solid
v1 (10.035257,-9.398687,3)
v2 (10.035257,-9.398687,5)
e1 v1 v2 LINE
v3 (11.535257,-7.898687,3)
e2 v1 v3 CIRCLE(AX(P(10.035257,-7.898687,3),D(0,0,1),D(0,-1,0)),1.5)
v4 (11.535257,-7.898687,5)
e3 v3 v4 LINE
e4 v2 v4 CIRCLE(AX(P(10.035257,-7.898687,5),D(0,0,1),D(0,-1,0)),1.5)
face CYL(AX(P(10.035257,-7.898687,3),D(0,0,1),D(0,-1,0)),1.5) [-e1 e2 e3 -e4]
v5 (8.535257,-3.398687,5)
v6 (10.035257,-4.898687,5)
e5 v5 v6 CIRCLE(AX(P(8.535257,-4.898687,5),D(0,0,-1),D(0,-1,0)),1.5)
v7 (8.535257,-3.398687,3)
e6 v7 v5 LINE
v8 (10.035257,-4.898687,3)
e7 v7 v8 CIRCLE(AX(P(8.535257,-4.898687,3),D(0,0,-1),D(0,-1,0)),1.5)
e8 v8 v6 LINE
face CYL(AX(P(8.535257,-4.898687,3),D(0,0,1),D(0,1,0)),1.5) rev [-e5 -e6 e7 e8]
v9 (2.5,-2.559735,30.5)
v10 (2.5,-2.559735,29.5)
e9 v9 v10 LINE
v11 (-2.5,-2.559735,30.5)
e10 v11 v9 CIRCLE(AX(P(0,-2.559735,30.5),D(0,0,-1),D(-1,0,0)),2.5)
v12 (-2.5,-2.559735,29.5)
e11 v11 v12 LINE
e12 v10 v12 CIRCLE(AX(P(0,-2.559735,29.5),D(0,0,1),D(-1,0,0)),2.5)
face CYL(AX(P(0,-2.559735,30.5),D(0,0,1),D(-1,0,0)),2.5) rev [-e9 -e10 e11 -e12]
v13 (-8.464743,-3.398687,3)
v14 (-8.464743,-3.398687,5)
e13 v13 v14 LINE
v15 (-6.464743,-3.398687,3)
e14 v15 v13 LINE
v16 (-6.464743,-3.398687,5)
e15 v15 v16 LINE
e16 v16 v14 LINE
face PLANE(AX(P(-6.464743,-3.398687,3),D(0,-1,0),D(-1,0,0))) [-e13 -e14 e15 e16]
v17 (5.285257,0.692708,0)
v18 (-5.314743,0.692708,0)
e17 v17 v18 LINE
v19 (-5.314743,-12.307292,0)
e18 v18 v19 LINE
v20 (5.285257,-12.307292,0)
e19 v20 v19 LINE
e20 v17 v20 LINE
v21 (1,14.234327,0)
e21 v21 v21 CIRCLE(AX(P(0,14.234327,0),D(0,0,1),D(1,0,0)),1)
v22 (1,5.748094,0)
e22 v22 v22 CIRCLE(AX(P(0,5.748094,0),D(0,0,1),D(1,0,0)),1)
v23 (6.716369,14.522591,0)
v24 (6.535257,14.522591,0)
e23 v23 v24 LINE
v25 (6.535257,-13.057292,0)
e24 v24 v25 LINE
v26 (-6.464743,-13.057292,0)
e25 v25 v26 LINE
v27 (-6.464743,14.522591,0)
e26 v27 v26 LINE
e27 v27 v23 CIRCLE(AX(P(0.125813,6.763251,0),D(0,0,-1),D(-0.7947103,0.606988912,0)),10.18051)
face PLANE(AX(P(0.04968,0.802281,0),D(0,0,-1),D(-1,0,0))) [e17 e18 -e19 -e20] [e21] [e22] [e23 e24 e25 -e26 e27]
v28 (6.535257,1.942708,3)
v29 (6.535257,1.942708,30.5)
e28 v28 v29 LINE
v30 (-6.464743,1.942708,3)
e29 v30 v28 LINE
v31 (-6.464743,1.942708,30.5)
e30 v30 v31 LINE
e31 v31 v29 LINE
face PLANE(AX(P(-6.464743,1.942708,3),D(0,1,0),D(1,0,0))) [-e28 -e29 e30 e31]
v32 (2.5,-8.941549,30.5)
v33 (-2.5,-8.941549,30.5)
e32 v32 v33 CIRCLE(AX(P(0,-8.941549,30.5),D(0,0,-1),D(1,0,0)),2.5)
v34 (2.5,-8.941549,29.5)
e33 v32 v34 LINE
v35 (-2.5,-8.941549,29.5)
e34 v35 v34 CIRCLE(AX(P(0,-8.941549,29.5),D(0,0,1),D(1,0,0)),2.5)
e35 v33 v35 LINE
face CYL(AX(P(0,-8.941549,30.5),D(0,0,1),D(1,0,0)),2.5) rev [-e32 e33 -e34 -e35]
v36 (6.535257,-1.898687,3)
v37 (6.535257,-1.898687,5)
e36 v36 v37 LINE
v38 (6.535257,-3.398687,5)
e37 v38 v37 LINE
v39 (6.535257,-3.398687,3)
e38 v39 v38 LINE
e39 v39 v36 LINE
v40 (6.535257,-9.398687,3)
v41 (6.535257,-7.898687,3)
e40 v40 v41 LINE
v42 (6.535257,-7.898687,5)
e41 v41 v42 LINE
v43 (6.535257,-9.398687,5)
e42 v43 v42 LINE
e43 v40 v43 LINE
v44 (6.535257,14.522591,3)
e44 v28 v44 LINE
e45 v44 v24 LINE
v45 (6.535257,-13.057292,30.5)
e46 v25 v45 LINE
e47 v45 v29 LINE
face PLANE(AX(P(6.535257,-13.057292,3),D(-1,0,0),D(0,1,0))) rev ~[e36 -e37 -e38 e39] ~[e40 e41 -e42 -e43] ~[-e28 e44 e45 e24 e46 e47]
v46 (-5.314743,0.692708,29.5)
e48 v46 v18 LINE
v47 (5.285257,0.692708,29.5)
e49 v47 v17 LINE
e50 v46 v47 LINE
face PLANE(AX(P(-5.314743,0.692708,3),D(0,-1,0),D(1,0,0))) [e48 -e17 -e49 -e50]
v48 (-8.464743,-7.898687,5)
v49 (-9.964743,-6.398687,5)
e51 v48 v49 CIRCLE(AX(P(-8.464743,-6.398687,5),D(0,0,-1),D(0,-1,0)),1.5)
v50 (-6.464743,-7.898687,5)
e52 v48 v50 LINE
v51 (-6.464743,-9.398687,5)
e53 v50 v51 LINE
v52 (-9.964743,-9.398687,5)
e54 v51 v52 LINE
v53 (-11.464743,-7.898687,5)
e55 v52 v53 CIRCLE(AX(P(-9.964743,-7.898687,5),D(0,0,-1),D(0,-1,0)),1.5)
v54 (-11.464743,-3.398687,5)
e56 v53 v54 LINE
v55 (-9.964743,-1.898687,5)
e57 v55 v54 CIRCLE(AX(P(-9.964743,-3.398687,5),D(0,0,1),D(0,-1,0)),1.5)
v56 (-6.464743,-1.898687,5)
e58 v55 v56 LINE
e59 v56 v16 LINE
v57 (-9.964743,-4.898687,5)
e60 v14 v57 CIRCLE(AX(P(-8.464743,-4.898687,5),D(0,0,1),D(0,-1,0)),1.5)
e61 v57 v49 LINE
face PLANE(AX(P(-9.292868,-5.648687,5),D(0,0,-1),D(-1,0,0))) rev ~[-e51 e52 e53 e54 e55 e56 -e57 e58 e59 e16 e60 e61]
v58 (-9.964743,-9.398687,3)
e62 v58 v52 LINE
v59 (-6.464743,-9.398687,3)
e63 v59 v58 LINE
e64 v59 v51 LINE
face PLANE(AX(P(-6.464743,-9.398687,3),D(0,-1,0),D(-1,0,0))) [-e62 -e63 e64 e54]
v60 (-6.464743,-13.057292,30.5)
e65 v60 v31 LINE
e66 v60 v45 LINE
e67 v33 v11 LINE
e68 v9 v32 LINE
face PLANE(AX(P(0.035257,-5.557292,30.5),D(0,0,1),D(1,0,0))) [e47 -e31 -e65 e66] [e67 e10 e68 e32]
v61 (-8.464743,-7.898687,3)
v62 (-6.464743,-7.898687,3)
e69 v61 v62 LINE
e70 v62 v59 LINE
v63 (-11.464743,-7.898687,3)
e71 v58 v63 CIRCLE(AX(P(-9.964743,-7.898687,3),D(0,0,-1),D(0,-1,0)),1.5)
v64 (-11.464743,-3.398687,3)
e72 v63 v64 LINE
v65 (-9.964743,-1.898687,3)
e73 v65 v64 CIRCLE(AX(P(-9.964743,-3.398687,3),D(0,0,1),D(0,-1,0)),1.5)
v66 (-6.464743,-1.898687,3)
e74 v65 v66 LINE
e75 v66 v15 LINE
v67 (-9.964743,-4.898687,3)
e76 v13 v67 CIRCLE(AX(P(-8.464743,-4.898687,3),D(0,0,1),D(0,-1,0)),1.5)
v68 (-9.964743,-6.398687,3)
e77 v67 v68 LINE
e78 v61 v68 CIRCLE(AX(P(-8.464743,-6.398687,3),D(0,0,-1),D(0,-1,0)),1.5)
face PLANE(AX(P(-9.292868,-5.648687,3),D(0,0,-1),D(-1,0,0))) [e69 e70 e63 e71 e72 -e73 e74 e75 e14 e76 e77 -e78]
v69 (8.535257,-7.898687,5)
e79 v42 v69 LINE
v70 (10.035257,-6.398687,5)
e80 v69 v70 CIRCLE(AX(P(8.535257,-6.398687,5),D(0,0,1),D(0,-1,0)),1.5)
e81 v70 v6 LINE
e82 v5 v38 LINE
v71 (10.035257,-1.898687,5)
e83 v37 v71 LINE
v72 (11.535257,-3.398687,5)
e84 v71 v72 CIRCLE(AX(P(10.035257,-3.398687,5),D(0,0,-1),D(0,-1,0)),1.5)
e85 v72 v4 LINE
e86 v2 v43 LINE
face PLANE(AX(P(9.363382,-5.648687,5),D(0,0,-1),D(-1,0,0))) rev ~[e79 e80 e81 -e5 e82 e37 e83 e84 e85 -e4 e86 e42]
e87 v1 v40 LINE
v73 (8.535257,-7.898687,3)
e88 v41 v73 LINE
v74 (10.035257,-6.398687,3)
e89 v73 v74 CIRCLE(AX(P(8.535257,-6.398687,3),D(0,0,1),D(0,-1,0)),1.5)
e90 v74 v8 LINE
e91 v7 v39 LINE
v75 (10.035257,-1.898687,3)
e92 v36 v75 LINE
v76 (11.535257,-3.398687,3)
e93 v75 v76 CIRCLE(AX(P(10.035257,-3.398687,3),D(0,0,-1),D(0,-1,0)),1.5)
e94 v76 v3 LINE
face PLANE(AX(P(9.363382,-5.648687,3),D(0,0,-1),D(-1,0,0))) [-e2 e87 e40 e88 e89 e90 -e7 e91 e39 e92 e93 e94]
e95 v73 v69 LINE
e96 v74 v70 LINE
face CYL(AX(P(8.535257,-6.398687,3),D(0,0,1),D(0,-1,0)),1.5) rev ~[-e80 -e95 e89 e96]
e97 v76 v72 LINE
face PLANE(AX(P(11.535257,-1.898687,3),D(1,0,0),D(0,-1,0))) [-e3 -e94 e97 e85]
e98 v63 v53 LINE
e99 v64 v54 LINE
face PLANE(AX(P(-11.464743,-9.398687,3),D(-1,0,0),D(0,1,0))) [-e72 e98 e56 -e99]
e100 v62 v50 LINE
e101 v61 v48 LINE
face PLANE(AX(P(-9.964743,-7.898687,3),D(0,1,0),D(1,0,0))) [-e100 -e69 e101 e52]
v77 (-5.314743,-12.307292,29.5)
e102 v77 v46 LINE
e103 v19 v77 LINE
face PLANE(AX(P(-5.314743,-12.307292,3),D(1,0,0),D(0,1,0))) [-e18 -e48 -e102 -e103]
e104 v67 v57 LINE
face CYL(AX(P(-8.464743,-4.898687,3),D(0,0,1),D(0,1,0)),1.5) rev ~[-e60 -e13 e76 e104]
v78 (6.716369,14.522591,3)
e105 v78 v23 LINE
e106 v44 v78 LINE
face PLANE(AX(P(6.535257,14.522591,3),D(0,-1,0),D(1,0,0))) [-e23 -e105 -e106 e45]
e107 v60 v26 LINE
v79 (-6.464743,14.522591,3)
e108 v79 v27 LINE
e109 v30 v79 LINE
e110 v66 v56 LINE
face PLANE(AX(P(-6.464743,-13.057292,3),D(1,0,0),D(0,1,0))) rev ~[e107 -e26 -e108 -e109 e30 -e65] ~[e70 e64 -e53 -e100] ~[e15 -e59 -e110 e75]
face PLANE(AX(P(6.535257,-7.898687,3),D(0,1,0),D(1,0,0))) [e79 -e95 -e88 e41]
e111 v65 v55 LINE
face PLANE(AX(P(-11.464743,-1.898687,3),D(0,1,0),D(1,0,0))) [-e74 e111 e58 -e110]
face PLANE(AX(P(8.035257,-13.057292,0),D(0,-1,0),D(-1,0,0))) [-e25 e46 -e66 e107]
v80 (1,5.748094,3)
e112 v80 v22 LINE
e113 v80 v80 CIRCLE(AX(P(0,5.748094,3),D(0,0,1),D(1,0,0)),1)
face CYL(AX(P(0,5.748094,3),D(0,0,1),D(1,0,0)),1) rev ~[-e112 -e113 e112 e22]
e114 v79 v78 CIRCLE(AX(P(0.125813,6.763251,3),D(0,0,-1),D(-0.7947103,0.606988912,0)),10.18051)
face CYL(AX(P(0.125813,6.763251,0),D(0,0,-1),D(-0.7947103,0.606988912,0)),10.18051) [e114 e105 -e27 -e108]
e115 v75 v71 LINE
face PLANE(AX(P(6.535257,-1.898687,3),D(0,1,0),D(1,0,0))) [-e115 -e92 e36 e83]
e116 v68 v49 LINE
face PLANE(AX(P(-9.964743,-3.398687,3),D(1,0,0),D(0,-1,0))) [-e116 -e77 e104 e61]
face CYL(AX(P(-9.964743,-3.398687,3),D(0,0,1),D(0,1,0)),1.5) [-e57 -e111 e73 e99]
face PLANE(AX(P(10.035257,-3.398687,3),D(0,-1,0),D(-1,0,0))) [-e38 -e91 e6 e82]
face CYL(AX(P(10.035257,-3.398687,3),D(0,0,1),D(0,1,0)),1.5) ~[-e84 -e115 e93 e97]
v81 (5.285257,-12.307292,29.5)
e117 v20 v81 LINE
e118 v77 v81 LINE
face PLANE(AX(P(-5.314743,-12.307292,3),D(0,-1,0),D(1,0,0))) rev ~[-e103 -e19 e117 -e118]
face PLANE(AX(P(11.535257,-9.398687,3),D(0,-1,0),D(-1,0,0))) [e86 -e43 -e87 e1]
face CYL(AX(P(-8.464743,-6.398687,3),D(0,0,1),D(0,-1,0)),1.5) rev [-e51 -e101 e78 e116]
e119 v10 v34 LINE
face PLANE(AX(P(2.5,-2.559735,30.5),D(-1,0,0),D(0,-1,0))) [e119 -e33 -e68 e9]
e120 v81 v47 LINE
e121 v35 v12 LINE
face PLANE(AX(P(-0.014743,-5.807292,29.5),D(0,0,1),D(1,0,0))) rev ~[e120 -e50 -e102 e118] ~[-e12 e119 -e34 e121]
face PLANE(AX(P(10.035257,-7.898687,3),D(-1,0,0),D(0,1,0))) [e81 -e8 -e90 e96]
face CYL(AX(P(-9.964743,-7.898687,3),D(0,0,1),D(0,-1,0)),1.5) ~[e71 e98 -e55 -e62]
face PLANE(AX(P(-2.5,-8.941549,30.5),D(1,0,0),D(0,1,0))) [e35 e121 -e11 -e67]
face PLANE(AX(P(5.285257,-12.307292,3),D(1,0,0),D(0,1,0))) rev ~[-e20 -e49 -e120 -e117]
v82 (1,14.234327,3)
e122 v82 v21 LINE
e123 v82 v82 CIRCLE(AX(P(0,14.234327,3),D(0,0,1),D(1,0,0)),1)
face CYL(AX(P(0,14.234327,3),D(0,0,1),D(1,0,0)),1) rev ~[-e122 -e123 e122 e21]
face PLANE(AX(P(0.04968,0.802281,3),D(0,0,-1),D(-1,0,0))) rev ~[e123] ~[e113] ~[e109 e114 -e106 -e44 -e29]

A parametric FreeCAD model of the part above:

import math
import FreeCAD as App
import Part
import Sketcher
from FreeCAD import Vector


def edges_at(feature, points):
    """Names of the edges that pass closest to the given points."""
    edges = feature.Shape.Edges
    near = lambda p: min(range(len(edges)), key=lambda i: edges[i].distToShape(Part.Vertex(*p))[0])
    return sorted({f"Edge{near(p) + 1}" for p in points})

doc = App.newDocument("Part")
body = doc.addObject("PartDesign::Body", "Body")

# Sketch on XY plane
sketch1 = body.newObject("Sketcher::SketchObject", "Sketch")
sketch1.AttachmentSupport = (doc.getObject("XY_Plane"), [""])
sketch1.MapMode = "FlatFace"
sketch1.addGeometry([
    Part.LineSegment(Vector(-7.964743, -13.057292, 0), Vector(8.035257, -13.057292, 0)),
    Part.LineSegment(Vector(8.035257, -13.057292, 0), Vector(8.035257, 13.172891, 0)),
    Part.ArcOfCircle(Part.Circle(Vector(0.125813, 6.763251, 0), Vector(0, 0, 1), 10.18051), math.radians(39.020552), math.radians(142.627901)),
    Part.LineSegment(Vector(-7.964743, 12.942708, 0), Vector(-7.964743, -13.057292, 0)),
], False)
sketch1.addConstraint([
    Sketcher.Constraint("Coincident", 0, 2, 1, 1),
    Sketcher.Constraint("Coincident", 1, 2, 2, 1),
    Sketcher.Constraint("Coincident", 2, 2, 3, 1),
    Sketcher.Constraint("Coincident", 3, 2, 0, 1),
    Sketcher.Constraint("Horizontal", 0),
    Sketcher.Constraint("Vertical", 1),
    Sketcher.Constraint("Vertical", 3),
    Sketcher.Constraint("DistanceX", 0, 1, 0, 2, 16.0),
    Sketcher.Constraint("DistanceY", 3, 2, 3, 1, 26.0),
    Sketcher.Constraint("Radius", 2, 10.18051),
    Sketcher.Constraint("DistanceY", 1, 1, 1, 2, 26.230183),
    Sketcher.Constraint("DistanceY", -1, 1, 2, 3, 6.763251),
    Sketcher.Constraint("DistanceX", -1, 1, 2, 3, 0.125813),
])
pad1 = body.newObject("PartDesign::Pad", "Pad")
pad1.Profile = sketch1
pad1.Length = 3

# Sketch on XY plane
sketch2 = body.newObject("Sketcher::SketchObject", "Sketch001")
sketch2.AttachmentSupport = (doc.getObject("XY_Plane"), [""])
sketch2.MapMode = "FlatFace"
sketch2.AttachmentOffset = App.Placement(Vector(0, 0, 3), App.Rotation())
sketch2.addGeometry([
    Part.LineSegment(Vector(-6.464743, 1.942708, 0), Vector(-6.464743, -13.057292, 0)),
    Part.LineSegment(Vector(-6.464743, -13.057292, 0), Vector(6.535257, -13.057292, 0)),
    Part.LineSegment(Vector(6.535257, -13.057292, 0), Vector(6.535257, 1.942708, 0)),
    Part.LineSegment(Vector(6.535257, 1.942708, 0), Vector(-6.464743, 1.942708, 0)),
], False)
sketch2.addConstraint([
    Sketcher.Constraint("Coincident", 0, 2, 1, 1),
    Sketcher.Constraint("Coincident", 1, 2, 2, 1),
    Sketcher.Constraint("Coincident", 2, 2, 3, 1),
    Sketcher.Constraint("Coincident", 3, 2, 0, 1),
    Sketcher.Constraint("Vertical", 0),
    Sketcher.Constraint("Horizontal", 1),
    Sketcher.Constraint("Vertical", 2),
    Sketcher.Constraint("Horizontal", 3),
    Sketcher.Constraint("DistanceX", 1, 1, 1, 2, 13.0),
    Sketcher.Constraint("DistanceY", 0, 2, 0, 1, 15.0),
    Sketcher.Constraint("DistanceX", 0, 2, -1, 1, 6.464743),
    Sketcher.Constraint("DistanceY", 0, 2, -1, 1, 13.057292),
])
pad2 = body.newObject("PartDesign::Pad", "Pad001")
pad2.Profile = sketch2
pad2.Length = 27.5

# Sketch on XY plane
sketch3 = body.newObject("Sketcher::SketchObject", "Sketch002")
sketch3.AttachmentSupport = (doc.getObject("XY_Plane"), [""])
sketch3.MapMode = "FlatFace"
sketch3.AttachmentOffset = App.Placement(Vector(0, 0, 3), App.Rotation())
sketch3.addGeometry([
    Part.LineSegment(Vector(-5.314743, 0.692708, 0), Vector(-5.314743, -12.307292, 0)),
    Part.LineSegment(Vector(-5.314743, -12.307292, 0), Vector(5.285257, -12.307292, 0)),
    Part.LineSegment(Vector(5.285257, -12.307292, 0), Vector(5.285257, 0.692708, 0)),
    Part.LineSegment(Vector(5.285257, 0.692708, 0), Vector(-5.314743, 0.692708, 0)),
], False)
sketch3.addConstraint([
    Sketcher.Constraint("Coincident", 0, 2, 1, 1),
    Sketcher.Constraint("Coincident", 1, 2, 2, 1),
    Sketcher.Constraint("Coincident", 2, 2, 3, 1),
    Sketcher.Constraint("Coincident", 3, 2, 0, 1),
    Sketcher.Constraint("Vertical", 0),
    Sketcher.Constraint("Horizontal", 1),
    Sketcher.Constraint("Vertical", 2),
    Sketcher.Constraint("Horizontal", 3),
    Sketcher.Constraint("DistanceY", 0, 2, 0, 1, 13.0),
    Sketcher.Constraint("DistanceX", 1, 1, 1, 2, 10.6),
    Sketcher.Constraint("DistanceX", 0, 2, -1, 1, 5.314743),
    Sketcher.Constraint("DistanceY", 0, 2, -1, 1, 12.307292),
])
pocket1 = body.newObject("PartDesign::Pocket", "Pocket")
pocket1.Profile = sketch3
pocket1.Length = 53
pocket1.Midplane = True

# Sketch on XY plane
sketch4 = body.newObject("Sketcher::SketchObject", "Sketch003")
sketch4.AttachmentSupport = (doc.getObject("XY_Plane"), [""])
sketch4.MapMode = "FlatFace"
sketch4.AttachmentOffset = App.Placement(Vector(0, 0, 30.5), App.Rotation())
sketch4.addGeometry([
    Part.LineSegment(Vector(-2.5, -2.559735, 0), Vector(-2.5, -8.941549, 0)),
    Part.ArcOfCircle(Part.Circle(Vector(0, -8.941549, 0), Vector(0, 0, 1), 2.5), math.radians(180), math.radians(360)),
    Part.LineSegment(Vector(2.5, -8.941549, 0), Vector(2.5, -2.559735, 0)),
    Part.ArcOfCircle(Part.Circle(Vector(0, -2.559735, 0), Vector(0, 0, 1), 2.5), math.radians(0), math.radians(180)),
], False)
sketch4.addConstraint([
    Sketcher.Constraint("Tangent", 0, 2, 1, 1),
    Sketcher.Constraint("Tangent", 1, 2, 2, 1),
    Sketcher.Constraint("Tangent", 2, 2, 3, 1),
    Sketcher.Constraint("Tangent", 3, 2, 0, 1),
    Sketcher.Constraint("Vertical", 0),
    Sketcher.Constraint("Vertical", 2),
    Sketcher.Constraint("PointOnObject", 1, 3, -2),
    Sketcher.Constraint("Radius", 1, 2.5),
    Sketcher.Constraint("DistanceY", 0, 2, 0, 1, 6.381815),
    Sketcher.Constraint("DistanceY", 1, 3, -1, 1, 8.941549),
])
pocket2 = body.newObject("PartDesign::Pocket", "Pocket001")
pocket2.Profile = sketch4
pocket2.Type = "ThroughAll"

# Sketch on XY plane
sketch5 = body.newObject("Sketcher::SketchObject", "Sketch004")
sketch5.AttachmentSupport = (doc.getObject("XY_Plane"), [""])
sketch5.MapMode = "FlatFace"
sketch5.AttachmentOffset = App.Placement(Vector(0, 0, 3), App.Rotation())
sketch5.addGeometry([
    Part.LineSegment(Vector(-7.964743, 14.522591, 0), Vector(-7.964743, -13.057292, 0)),  # 0
    Part.LineSegment(Vector(-7.964743, -13.057292, 0), Vector(-6.464743, -13.057292, 0)),  # 1
    Part.LineSegment(Vector(-6.464743, -13.057292, 0), Vector(-6.464743, 14.522591, 0)),  # 2
    Part.LineSegment(Vector(-6.464743, 14.522591, 0), Vector(-7.964743, 14.522591, 0)),  # 3
    Part.LineSegment(Vector(6.535257, 14.522591, 0), Vector(6.535257, -13.057292, 0)),  # 4
    Part.LineSegment(Vector(6.535257, -13.057292, 0), Vector(8.035257, -13.057292, 0)),  # 5
    Part.LineSegment(Vector(8.035257, -13.057292, 0), Vector(8.035257, 14.522591, 0)),  # 6
    Part.LineSegment(Vector(8.035257, 14.522591, 0), Vector(6.535257, 14.522591, 0)),  # 7
], False)
sketch5.addConstraint([
    Sketcher.Constraint("Coincident", 0, 2, 1, 1),
    Sketcher.Constraint("Coincident", 1, 2, 2, 1),
    Sketcher.Constraint("Coincident", 2, 2, 3, 1),
    Sketcher.Constraint("Coincident", 3, 2, 0, 1),
    Sketcher.Constraint("Coincident", 4, 2, 5, 1),
    Sketcher.Constraint("Coincident", 5, 2, 6, 1),
    Sketcher.Constraint("Coincident", 6, 2, 7, 1),
    Sketcher.Constraint("Coincident", 7, 2, 4, 1),
    Sketcher.Constraint("Vertical", 0),
    Sketcher.Constraint("Horizontal", 1),
    Sketcher.Constraint("Vertical", 2),
    Sketcher.Constraint("Horizontal", 3),
    Sketcher.Constraint("Vertical", 4),
    Sketcher.Constraint("Horizontal", 5),
    Sketcher.Constraint("Vertical", 6),
    Sketcher.Constraint("Horizontal", 7),
    Sketcher.Constraint("Horizontal", 1, 2, 4, 2),
    Sketcher.Constraint("Horizontal", 3, 2, 6, 2),
    Sketcher.Constraint("Equal", 3, 5),
    Sketcher.Constraint("DistanceX", 1, 1, 1, 2, 1.5),
    Sketcher.Constraint("DistanceX", 1, 2, 4, 2, 13.0),
    Sketcher.Constraint("DistanceY", 0, 2, 0, 1, 27.579883),
    Sketcher.Constraint("DistanceY", -1, 1, 2, 2, 14.522591),
    Sketcher.Constraint("DistanceX", 0, 2, -1, 1, 7.964743),
])
pocket3 = body.newObject("PartDesign::Pocket", "Pocket002")
pocket3.Profile = sketch5
pocket3.Type = "ThroughAll"

# Sketch on XY plane
sketch6 = body.newObject("Sketcher::SketchObject", "Sketch005")
sketch6.AttachmentSupport = (doc.getObject("XY_Plane"), [""])
sketch6.MapMode = "FlatFace"
sketch6.AttachmentOffset = App.Placement(Vector(0, 0, 3), App.Rotation())
sketch6.addGeometry([
    Part.LineSegment(Vector(-9.964743, -3.398687, 0), Vector(-6.464743, -3.398687, 0)),  # 0
    Part.LineSegment(Vector(-6.464743, -3.398687, 0), Vector(-6.464743, -1.898687, 0)),  # 1
    Part.LineSegment(Vector(-6.464743, -1.898687, 0), Vector(-11.464743, -1.898687, 0)),  # 2
    Part.LineSegment(Vector(-11.464743, -1.898687, 0), Vector(-11.464743, -9.398687, 0)),  # 3
    Part.LineSegment(Vector(-11.464743, -9.398687, 0), Vector(-6.464743, -9.398687, 0)),  # 4
    Part.LineSegment(Vector(-6.464743, -9.398687, 0), Vector(-6.464743, -7.898687, 0)),  # 5
    Part.LineSegment(Vector(-6.464743, -7.898687, 0), Vector(-9.964743, -7.898687, 0)),  # 6
    Part.LineSegment(Vector(-9.964743, -7.898687, 0), Vector(-9.964743, -3.398687, 0)),  # 7
    Part.LineSegment(Vector(6.535257, -1.898687, 0), Vector(6.535257, -3.398687, 0)),  # 8
    Part.LineSegment(Vector(6.535257, -3.398687, 0), Vector(10.035257, -3.398687, 0)),  # 9
    Part.LineSegment(Vector(10.035257, -3.398687, 0), Vector(10.035257, -7.898687, 0)),  # 10
    Part.LineSegment(Vector(10.035257, -7.898687, 0), Vector(6.535257, -7.898687, 0)),  # 11
    Part.LineSegment(Vector(6.535257, -7.898687, 0), Vector(6.535257, -9.398687, 0)),  # 12
    Part.LineSegment(Vector(6.535257, -9.398687, 0), Vector(11.535257, -9.398687, 0)),  # 13
    Part.LineSegment(Vector(11.535257, -9.398687, 0), Vector(11.535257, -1.898687, 0)),  # 14
    Part.LineSegment(Vector(11.535257, -1.898687, 0), Vector(6.535257, -1.898687, 0)),  # 15
], False)
sketch6.addConstraint([
    Sketcher.Constraint("Coincident", 0, 2, 1, 1),
    Sketcher.Constraint("Coincident", 1, 2, 2, 1),
    Sketcher.Constraint("Coincident", 2, 2, 3, 1),
    Sketcher.Constraint("Coincident", 3, 2, 4, 1),
    Sketcher.Constraint("Coincident", 4, 2, 5, 1),
    Sketcher.Constraint("Coincident", 5, 2, 6, 1),
    Sketcher.Constraint("Coincident", 6, 2, 7, 1),
    Sketcher.Constraint("Coincident", 7, 2, 0, 1),
    Sketcher.Constraint("Coincident", 8, 2, 9, 1),
    Sketcher.Constraint("Coincident", 9, 2, 10, 1),
    Sketcher.Constraint("Coincident", 10, 2, 11, 1),
    Sketcher.Constraint("Coincident", 11, 2, 12, 1),
    Sketcher.Constraint("Coincident", 12, 2, 13, 1),
    Sketcher.Constraint("Coincident", 13, 2, 14, 1),
    Sketcher.Constraint("Coincident", 14, 2, 15, 1),
    Sketcher.Constraint("Coincident", 15, 2, 8, 1),
    Sketcher.Constraint("Horizontal", 0),
    Sketcher.Constraint("Vertical", 1),
    Sketcher.Constraint("Horizontal", 2),
    Sketcher.Constraint("Vertical", 3),
    Sketcher.Constraint("Horizontal", 4),
    Sketcher.Constraint("Vertical", 5),
    Sketcher.Constraint("Horizontal", 6),
    Sketcher.Constraint("Vertical", 7),
    Sketcher.Constraint("Vertical", 8),
    Sketcher.Constraint("Horizontal", 9),
    Sketcher.Constraint("Vertical", 10),
    Sketcher.Constraint("Horizontal", 11),
    Sketcher.Constraint("Vertical", 12),
    Sketcher.Constraint("Horizontal", 13),
    Sketcher.Constraint("Vertical", 14),
    Sketcher.Constraint("Horizontal", 15),
    Sketcher.Constraint("Horizontal", 7, 2, 8, 2),
    Sketcher.Constraint("Horizontal", 6, 2, 10, 2),
    Sketcher.Constraint("Horizontal", 4, 2, 12, 2),
    Sketcher.Constraint("Horizontal", 2, 2, 14, 2),
    Sketcher.Constraint("Vertical", 1, 2, 4, 2),
    Sketcher.Constraint("Vertical", 8, 2, 11, 2),
    Sketcher.Constraint("Equal", 6, 9),
    Sketcher.Constraint("Equal", 4, 13),
    Sketcher.Constraint("Equal", 1, 5),
    Sketcher.Constraint("DistanceX", 2, 2, 2, 1, 5.0),
    Sketcher.Constraint("DistanceX", 0, 1, 0, 2, 3.5),
    Sketcher.Constraint("DistanceY", 1, 1, 1, 2, 1.5),
    Sketcher.Constraint("DistanceY", 3, 2, 3, 1, 7.5),
    Sketcher.Constraint("DistanceX", 0, 2, 8, 2, 13.0),
    Sketcher.Constraint("DistanceX", 0, 2, -1, 1, 6.464743),
    Sketcher.Constraint("DistanceY", 0, 2, -1, 1, 3.398687),
])
pad3 = body.newObject("PartDesign::Pad", "Pad002")
pad3.Profile = sketch6
pad3.Length = 2
doc.recompute()

fillet = body.newObject("PartDesign::Fillet", "Fillet")
fillet.Base = (pad3, edges_at(pad3, [
    (-9.965, -3.399, 4),
    (-11.465, -1.899, 4),
    (-11.465, -9.399, 4),
    (-9.965, -7.899, 4),
]))
fillet.Radius = 1.5
doc.recompute()

fillet2 = body.newObject("PartDesign::Fillet", "Fillet001")
fillet2.Base = (fillet, edges_at(fillet, [
    (10.035, -3.399, 4),
    (10.035, -7.899, 4),
    (11.535, -9.399, 4),
    (11.535, -1.899, 4),
]))
fillet2.Radius = 1.5

# Sketch on XY plane
sketch7 = body.newObject("Sketcher::SketchObject", "Sketch006")
sketch7.AttachmentSupport = (doc.getObject("XY_Plane"), [""])
sketch7.MapMode = "FlatFace"
sketch7.AttachmentOffset = App.Placement(Vector(0, 0, 3), App.Rotation())
sketch7.addGeometry([
    Part.Circle(Vector(0, 14.234327, 0), Vector(0, 0, 1), 1),
    Part.Circle(Vector(0, 5.748094, 0), Vector(0, 0, 1), 1),
], False)
sketch7.addConstraint([
    Sketcher.Constraint("Equal", 0, 1),
    Sketcher.Constraint("PointOnObject", 0, 3, -2),
    Sketcher.Constraint("PointOnObject", 1, 3, -2),
    Sketcher.Constraint("Diameter", 0, 2.0),
    Sketcher.Constraint("DistanceY", -1, 1, 0, 3, 14.234327),
    Sketcher.Constraint("DistanceY", -1, 1, 1, 3, 5.748094),
])
pocket4 = body.newObject("PartDesign::Pocket", "Pocket003")
pocket4.Profile = sketch7
pocket4.Type = "ThroughAll"

doc.recompute()
